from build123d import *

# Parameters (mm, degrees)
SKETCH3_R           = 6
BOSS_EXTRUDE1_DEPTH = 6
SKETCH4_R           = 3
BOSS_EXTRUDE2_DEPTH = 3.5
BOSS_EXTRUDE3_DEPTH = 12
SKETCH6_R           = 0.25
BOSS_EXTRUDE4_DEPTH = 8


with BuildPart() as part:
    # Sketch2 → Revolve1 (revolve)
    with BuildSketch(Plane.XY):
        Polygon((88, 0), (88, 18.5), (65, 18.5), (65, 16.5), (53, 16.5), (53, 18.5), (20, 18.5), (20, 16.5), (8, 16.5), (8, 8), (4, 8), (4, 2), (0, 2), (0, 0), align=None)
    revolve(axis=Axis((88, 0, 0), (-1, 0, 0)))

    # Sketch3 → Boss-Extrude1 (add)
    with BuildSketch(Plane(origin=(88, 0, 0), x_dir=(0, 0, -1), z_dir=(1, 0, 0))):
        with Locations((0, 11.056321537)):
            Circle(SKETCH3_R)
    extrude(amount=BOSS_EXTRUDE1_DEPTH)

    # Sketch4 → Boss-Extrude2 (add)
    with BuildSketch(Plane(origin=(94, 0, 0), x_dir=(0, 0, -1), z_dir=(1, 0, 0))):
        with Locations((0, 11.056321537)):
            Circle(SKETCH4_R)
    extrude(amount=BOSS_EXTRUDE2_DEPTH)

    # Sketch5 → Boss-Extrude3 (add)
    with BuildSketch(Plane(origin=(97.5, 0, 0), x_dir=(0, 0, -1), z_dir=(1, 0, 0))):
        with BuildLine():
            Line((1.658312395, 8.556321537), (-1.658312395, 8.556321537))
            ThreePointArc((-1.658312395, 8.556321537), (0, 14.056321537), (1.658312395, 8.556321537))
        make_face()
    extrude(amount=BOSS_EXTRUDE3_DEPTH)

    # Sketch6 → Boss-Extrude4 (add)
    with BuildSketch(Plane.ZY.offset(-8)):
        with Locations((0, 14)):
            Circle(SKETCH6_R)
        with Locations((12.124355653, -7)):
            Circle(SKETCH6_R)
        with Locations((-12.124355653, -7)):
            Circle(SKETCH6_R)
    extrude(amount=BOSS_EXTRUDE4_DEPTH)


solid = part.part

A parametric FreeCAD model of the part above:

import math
import FreeCAD as App
import Part
import Sketcher

doc = App.newDocument("Part")
body = doc.addObject("PartDesign::Body", "Body")

# Sketch on XY plane
sketch1 = body.newObject("Sketcher::SketchObject", "Sketch")
sketch1.AttachmentSupport = (doc.getObject("XY_Plane"), [""])
sketch1.MapMode = "FlatFace"
sketch1.addGeometry([
    Part.LineSegment(App.Vector(88, 0, 0), App.Vector(88, 18.5, 0)),  # 0
    Part.LineSegment(App.Vector(88, 18.5, 0), App.Vector(65, 18.5, 0)),  # 1
    Part.LineSegment(App.Vector(65, 18.5, 0), App.Vector(65, 16.5, 0)),  # 2
    Part.LineSegment(App.Vector(65, 16.5, 0), App.Vector(53, 16.5, 0)),  # 3
    Part.LineSegment(App.Vector(53, 16.5, 0), App.Vector(53, 18.5, 0)),  # 4
    Part.LineSegment(App.Vector(53, 18.5, 0), App.Vector(20, 18.5, 0)),  # 5
    Part.LineSegment(App.Vector(20, 18.5, 0), App.Vector(20, 16.5, 0)),  # 6
    Part.LineSegment(App.Vector(20, 16.5, 0), App.Vector(8, 16.5, 0)),  # 7
    Part.LineSegment(App.Vector(8, 16.5, 0), App.Vector(8, 8, 0)),  # 8
    Part.LineSegment(App.Vector(8, 8, 0), App.Vector(4, 8, 0)),  # 9
    Part.LineSegment(App.Vector(4, 8, 0), App.Vector(4, 2, 0)),  # 10
    Part.LineSegment(App.Vector(4, 2, 0), App.Vector(0, 2, 0)),  # 11
    Part.LineSegment(App.Vector(0, 2, 0), App.Vector(0, 0, 0)),  # 12
    Part.LineSegment(App.Vector(0, 0, 0), App.Vector(88, 0, 0)),  # 13
], False)
sketch1.addConstraint([
    Sketcher.Constraint("Coincident", 0, 2, 1, 1),
    Sketcher.Constraint("Coincident", 1, 2, 2, 1),
    Sketcher.Constraint("Coincident", 2, 2, 3, 1),
    Sketcher.Constraint("Coincident", 3, 2, 4, 1),
    Sketcher.Constraint("Coincident", 4, 2, 5, 1),
    Sketcher.Constraint("Coincident", 5, 2, 6, 1),
    Sketcher.Constraint("Coincident", 6, 2, 7, 1),
    Sketcher.Constraint("Coincident", 7, 2, 8, 1),
    Sketcher.Constraint("Coincident", 8, 2, 9, 1),
    Sketcher.Constraint("Coincident", 9, 2, 10, 1),
    Sketcher.Constraint("Coincident", 10, 2, 11, 1),
    Sketcher.Constraint("Coincident", 11, 2, 12, 1),
    Sketcher.Constraint("Coincident", 12, 2, 13, 1),
    Sketcher.Constraint("Coincident", 13, 2, 0, 1),
    Sketcher.Constraint("Vertical", 0),
    Sketcher.Constraint("Horizontal", 1),
    Sketcher.Constraint("Vertical", 2),
    Sketcher.Constraint("Horizontal", 3),
    Sketcher.Constraint("Vertical", 4),
    Sketcher.Constraint("Horizontal", 5),
    Sketcher.Constraint("Vertical", 6),
    Sketcher.Constraint("Horizontal", 7),
    Sketcher.Constraint("Vertical", 8),
    Sketcher.Constraint("Horizontal", 9),
    Sketcher.Constraint("Vertical", 10),
    Sketcher.Constraint("Horizontal", 11),
    Sketcher.Constraint("Vertical", 12),
    Sketcher.Constraint("Horizontal", 13),
    Sketcher.Constraint("Coincident", 12, 2, -1, 1),
    Sketcher.Constraint("Horizontal", 1, 2, 4, 2),
    Sketcher.Constraint("Horizontal", 3, 2, 6, 2),
    Sketcher.Constraint("Equal", 3, 7),
    Sketcher.Constraint("Equal", 9, 11),
    Sketcher.Constraint("Equal", 6, 12),
    Sketcher.Constraint("DistanceX", 1, 2, 1, 1, 23.0),
    Sketcher.Constraint("DistanceX", 3, 2, 3, 1, 12.0),
    Sketcher.Constraint("DistanceX", 5, 2, 5, 1, 33.0),
    Sketcher.Constraint("DistanceX", 9, 2, 9, 1, 4.0),
    Sketcher.Constraint("DistanceY", 2, 2, 2, 1, 2.0),
    Sketcher.Constraint("DistanceY", 10, 2, 10, 1, 6.0),
    Sketcher.Constraint("DistanceY", 0, 1, 0, 2, 18.5),
])
revolution = body.newObject("PartDesign::Revolution", "Revolution")
revolution.Profile = sketch1
revolution.ReferenceAxis = (sketch1, ["H_Axis"])
revolution.Angle = 360

# Sketch on YZ plane
sketch2 = body.newObject("Sketcher::SketchObject", "Sketch001")
sketch2.AttachmentSupport = (doc.getObject("YZ_Plane"), [""])
sketch2.MapMode = "FlatFace"
sketch2.AttachmentOffset = App.Placement(App.Vector(0, 0, 88), App.Rotation())
sketch2.addGeometry(Part.Circle(App.Vector(11, 0, 0), App.Vector(0, 0, 1), 6), False)
sketch2.addConstraint([
    Sketcher.Constraint("PointOnObject", 0, 3, -1),
    Sketcher.Constraint("Diameter", 0, 12.0),
    Sketcher.Constraint("DistanceX", -1, 1, 0, 3, 11.056322),
])
pad1 = body.newObject("PartDesign::Pad", "Pad")
pad1.Profile = sketch2
pad1.Length = 6

# Sketch on YZ plane
sketch3 = body.newObject("Sketcher::SketchObject", "Sketch002")
sketch3.AttachmentSupport = (doc.getObject("YZ_Plane"), [""])
sketch3.MapMode = "FlatFace"
sketch3.AttachmentOffset = App.Placement(App.Vector(0, 0, 94), App.Rotation())
sketch3.addGeometry(Part.Circle(App.Vector(11.1, 0, 0), App.Vector(0, 0, 1), 3), False)
sketch3.addConstraint([
    Sketcher.Constraint("PointOnObject", 0, 3, -1),
    Sketcher.Constraint("Diameter", 0, 6.0),
    Sketcher.Constraint("DistanceX", -1, 1, 0, 3, 11.056322),
])
pad2 = body.newObject("PartDesign::Pad", "Pad001")
pad2.Profile = sketch3
pad2.Length = 3.5

# Sketch on YZ plane
sketch4 = body.newObject("Sketcher::SketchObject", "Sketch003")
sketch4.AttachmentSupport = (doc.getObject("YZ_Plane"), [""])
sketch4.MapMode = "FlatFace"
sketch4.AttachmentOffset = App.Placement(App.Vector(0, 0, 97.5), App.Rotation())
sketch4.addGeometry([
    Part.LineSegment(App.Vector(8.6, 1.7, 0), App.Vector(8.6, -1.7, 0)),
    Part.ArcOfCircle(Part.Circle(App.Vector(11.1, 0, 0), App.Vector(0, 0, 1), 3), math.radians(-146), math.radians(146)),
], False)
sketch4.addConstraint([
    Sketcher.Constraint("Coincident", 0, 1, 1, 2),
    Sketcher.Constraint("Coincident", 1, 1, 0, 2),
    Sketcher.Constraint("Vertical", 0),
    Sketcher.Constraint("PointOnObject", 1, 3, -1),
    Sketcher.Constraint("Radius", 1, 3.0),
    Sketcher.Constraint("DistanceX", 0, 1, 1, 3, 2.5),
    Sketcher.Constraint("DistanceX", -1, 1, 1, 3, 11.056322),
])
pad3 = body.newObject("PartDesign::Pad", "Pad002")
pad3.Profile = sketch4
pad3.Length = 12

# Sketch on YZ plane
sketch5 = body.newObject("Sketcher::SketchObject", "Sketch004")
sketch5.AttachmentSupport = (doc.getObject("YZ_Plane"), [""])
sketch5.MapMode = "FlatFace"
sketch5.AttachmentOffset = App.Placement(App.Vector(0, 0, 8), App.Rotation())
sketch5.addGeometry([
    Part.Circle(App.Vector(14, 0, 0), App.Vector(0, 0, 1), 0.25),
    Part.Circle(App.Vector(-7, 12.12, 0), App.Vector(0, 0, 1), 0.25),
    Part.Circle(App.Vector(-7, -12.12, 0), App.Vector(0, 0, 1), 0.25),
], False)
sketch5.addConstraint([
    Sketcher.Constraint("Equal", 0, 1),
    Sketcher.Constraint("Equal", 1, 2),
    Sketcher.Constraint("Symmetric", 1, 3, 2, 3, -1),
    Sketcher.Constraint("PointOnObject", 0, 3, -1),
    Sketcher.Constraint("Diameter", 0, 0.5),
    Sketcher.Constraint("DistanceX", -1, 1, 0, 3, 14.0),
    Sketcher.Constraint("DistanceX", 1, 3, -1, 1, 7.0),
    Sketcher.Constraint("DistanceY", 2, 3, 1, 3, 24.248711),
])
pad4 = body.newObject("PartDesign::Pad", "Pad003")
pad4.Profile = sketch5
pad4.Length = 8
pad4.Reversed = True

doc.recompute()
